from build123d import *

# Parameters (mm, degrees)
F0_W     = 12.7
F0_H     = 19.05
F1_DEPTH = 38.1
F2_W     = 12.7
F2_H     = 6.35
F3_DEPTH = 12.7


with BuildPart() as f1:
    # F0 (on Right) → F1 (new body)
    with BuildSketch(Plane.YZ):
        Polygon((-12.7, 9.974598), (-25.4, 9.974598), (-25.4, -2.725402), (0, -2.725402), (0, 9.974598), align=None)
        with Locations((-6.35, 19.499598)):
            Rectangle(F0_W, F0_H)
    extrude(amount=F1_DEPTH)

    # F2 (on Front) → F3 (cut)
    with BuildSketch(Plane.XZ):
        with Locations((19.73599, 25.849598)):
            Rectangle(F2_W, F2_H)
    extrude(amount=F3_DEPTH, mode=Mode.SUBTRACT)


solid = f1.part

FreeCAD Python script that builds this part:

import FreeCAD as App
import Part
import Sketcher
from FreeCAD import Vector
Q = App.Units.Quantity

doc = App.newDocument("Part")
body = doc.addObject("PartDesign::Body", "Body")

sketch1 = body.newObject("Sketcher::SketchObject", "Sketch")
sketch1.AttachmentSupport = (doc.getObject("YZ_Plane"), [""])
sketch1.MapMode = "FlatFace"
sketch1.addGeometry(Part.LineSegment(Vector(-25, 10, 0), Vector(-25, -3, 0)), False)
sketch1.addGeometry(Part.LineSegment(Vector(-25, -3, 0), Vector(0, -3, 0)), False)
sketch1.addGeometry(Part.LineSegment(Vector(0, -3, 0), Vector(0, 29, 0)), False)
sketch1.addGeometry(Part.LineSegment(Vector(0, 29, 0), Vector(-13, 29, 0)), False)
sketch1.addGeometry(Part.LineSegment(Vector(-13, 29, 0), Vector(-13, 10, 0)), False)
sketch1.addGeometry(Part.LineSegment(Vector(-13, 10, 0), Vector(-25, 10, 0)), False)
sketch1.addConstraint(Sketcher.Constraint("Coincident", 0, 2, 1, 1))
sketch1.addConstraint(Sketcher.Constraint("Coincident", 1, 2, 2, 1))
sketch1.addConstraint(Sketcher.Constraint("Coincident", 2, 2, 3, 1))
sketch1.addConstraint(Sketcher.Constraint("Coincident", 3, 2, 4, 1))
sketch1.addConstraint(Sketcher.Constraint("Coincident", 4, 2, 5, 1))
sketch1.addConstraint(Sketcher.Constraint("Coincident", 5, 2, 0, 1))
sketch1.addConstraint(Sketcher.Constraint("Vertical", 0))
sketch1.addConstraint(Sketcher.Constraint("Horizontal", 1))
sketch1.addConstraint(Sketcher.Constraint("Vertical", 2))
sketch1.addConstraint(Sketcher.Constraint("Horizontal", 3))
sketch1.addConstraint(Sketcher.Constraint("Vertical", 4))
sketch1.addConstraint(Sketcher.Constraint("Horizontal", 5))
sketch1.addConstraint(Sketcher.Constraint("PointOnObject", 1, 2, -2))
sketch1.addConstraint(Sketcher.Constraint("Equal", 3, 5))
sketch1.addConstraint(Sketcher.Constraint("Equal", 5, 0))
sketch1.addConstraint(Sketcher.Constraint("DistanceX", 1, 1, 1, 2, Q("1 in")))
sketch1.addConstraint(Sketcher.Constraint("DistanceY", 2, 1, 2, 2, Q("1.25 in")))
sketch1.addConstraint(Sketcher.Constraint("DistanceY", 0, 2, -1, 1, Q("2.725402 mm")))
pad1 = body.newObject("PartDesign::Pad", "Pad")
pad1.Profile = sketch1
pad1.Length = Q("1.5 in")

sketch2 = body.newObject("Sketcher::SketchObject", "Sketch001")
sketch2.AttachmentSupport = (doc.getObject("XZ_Plane"), [""])
sketch2.MapMode = "FlatFace"
sketch2.addGeometry(Part.LineSegment(Vector(13, 29, 0), Vector(13, 23, 0)), False)
sketch2.addGeometry(Part.LineSegment(Vector(13, 23, 0), Vector(26, 23, 0)), False)
sketch2.addGeometry(Part.LineSegment(Vector(26, 23, 0), Vector(26, 29, 0)), False)
sketch2.addGeometry(Part.LineSegment(Vector(26, 29, 0), Vector(13, 29, 0)), False)
sketch2.addConstraint(Sketcher.Constraint("Coincident", 0, 2, 1, 1))
sketch2.addConstraint(Sketcher.Constraint("Coincident", 1, 2, 2, 1))
sketch2.addConstraint(Sketcher.Constraint("Coincident", 2, 2, 3, 1))
sketch2.addConstraint(Sketcher.Constraint("Coincident", 3, 2, 0, 1))
sketch2.addConstraint(Sketcher.Constraint("Vertical", 0))
sketch2.addConstraint(Sketcher.Constraint("Horizontal", 1))
sketch2.addConstraint(Sketcher.Constraint("Vertical", 2))
sketch2.addConstraint(Sketcher.Constraint("Horizontal", 3))
sketch2.addConstraint(Sketcher.Constraint("DistanceX", 1, 1, 1, 2, Q("0.5 in")))
sketch2.addConstraint(Sketcher.Constraint("DistanceY", 0, 2, 0, 1, Q("0.25 in")))
sketch2.addConstraint(Sketcher.Constraint("DistanceY", -1, 1, 2, 2, Q("29.024598 mm")))
sketch2.addConstraint(Sketcher.Constraint("DistanceX", -1, 1, 0, 2, Q("13.38599 mm")))
pocket1 = body.newObject("PartDesign::Pocket", "Pocket")
pocket1.Profile = sketch2
pocket1.Length = Q("0.5 in")
pocket1.Reversed = True

doc.recompute()
